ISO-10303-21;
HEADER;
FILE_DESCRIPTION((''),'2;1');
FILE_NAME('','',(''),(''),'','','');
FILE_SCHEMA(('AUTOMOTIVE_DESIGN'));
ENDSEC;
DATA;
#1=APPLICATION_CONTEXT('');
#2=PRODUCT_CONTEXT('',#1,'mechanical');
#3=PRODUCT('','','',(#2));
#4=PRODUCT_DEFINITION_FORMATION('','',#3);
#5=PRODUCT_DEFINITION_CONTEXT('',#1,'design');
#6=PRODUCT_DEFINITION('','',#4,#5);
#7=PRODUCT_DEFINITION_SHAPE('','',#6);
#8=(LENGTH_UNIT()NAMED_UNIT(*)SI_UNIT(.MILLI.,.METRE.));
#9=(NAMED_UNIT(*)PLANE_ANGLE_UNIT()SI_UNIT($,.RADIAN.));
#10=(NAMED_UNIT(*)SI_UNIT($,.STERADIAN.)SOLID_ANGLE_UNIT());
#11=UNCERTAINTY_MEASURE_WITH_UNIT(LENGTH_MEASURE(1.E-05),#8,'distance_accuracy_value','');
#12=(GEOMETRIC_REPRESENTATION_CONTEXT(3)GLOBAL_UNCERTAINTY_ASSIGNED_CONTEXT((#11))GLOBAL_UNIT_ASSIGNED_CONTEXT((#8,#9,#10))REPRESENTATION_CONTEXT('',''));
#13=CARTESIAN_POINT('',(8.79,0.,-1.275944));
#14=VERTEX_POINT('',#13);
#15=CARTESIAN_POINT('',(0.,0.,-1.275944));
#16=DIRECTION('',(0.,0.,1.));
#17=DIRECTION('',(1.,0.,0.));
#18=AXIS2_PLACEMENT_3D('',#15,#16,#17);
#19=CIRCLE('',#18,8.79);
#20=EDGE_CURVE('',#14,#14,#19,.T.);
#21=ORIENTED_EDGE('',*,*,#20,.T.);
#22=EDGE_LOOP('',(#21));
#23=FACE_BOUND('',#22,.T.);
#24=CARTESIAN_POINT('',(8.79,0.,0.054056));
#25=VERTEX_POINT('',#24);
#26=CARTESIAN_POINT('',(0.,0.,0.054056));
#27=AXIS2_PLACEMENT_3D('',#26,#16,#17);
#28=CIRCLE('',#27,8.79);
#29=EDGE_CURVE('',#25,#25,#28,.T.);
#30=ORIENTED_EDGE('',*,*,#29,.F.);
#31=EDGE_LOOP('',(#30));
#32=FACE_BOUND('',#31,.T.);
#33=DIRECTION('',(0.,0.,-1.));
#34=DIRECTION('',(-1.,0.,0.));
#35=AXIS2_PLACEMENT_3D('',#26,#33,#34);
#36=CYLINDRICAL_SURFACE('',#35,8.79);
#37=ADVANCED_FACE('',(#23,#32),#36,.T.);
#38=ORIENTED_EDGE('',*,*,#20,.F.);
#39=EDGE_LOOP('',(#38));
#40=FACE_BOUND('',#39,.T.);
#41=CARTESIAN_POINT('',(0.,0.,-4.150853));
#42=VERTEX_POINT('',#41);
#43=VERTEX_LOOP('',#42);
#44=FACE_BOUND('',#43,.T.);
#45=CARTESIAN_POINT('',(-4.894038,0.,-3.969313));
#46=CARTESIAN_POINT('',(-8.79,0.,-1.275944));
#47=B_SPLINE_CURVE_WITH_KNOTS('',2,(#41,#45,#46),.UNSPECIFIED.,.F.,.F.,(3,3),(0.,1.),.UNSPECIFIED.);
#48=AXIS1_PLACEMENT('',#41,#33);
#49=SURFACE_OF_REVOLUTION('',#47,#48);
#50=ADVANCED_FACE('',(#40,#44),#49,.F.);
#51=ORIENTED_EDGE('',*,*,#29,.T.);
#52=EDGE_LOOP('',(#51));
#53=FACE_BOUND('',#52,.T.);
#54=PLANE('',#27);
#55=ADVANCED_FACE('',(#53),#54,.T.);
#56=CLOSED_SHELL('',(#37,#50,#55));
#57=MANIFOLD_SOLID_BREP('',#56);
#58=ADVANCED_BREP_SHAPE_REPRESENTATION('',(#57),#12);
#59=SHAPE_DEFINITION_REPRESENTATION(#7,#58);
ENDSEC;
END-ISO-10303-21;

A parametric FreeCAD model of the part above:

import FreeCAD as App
import Part
import Sketcher
from FreeCAD import Vector
Q = App.Units.Quantity

doc = App.newDocument("Part")
body = doc.addObject("PartDesign::Body", "Body")

# Sketch on XZ plane
sketch1 = body.newObject("Sketcher::SketchObject", "Sketch")
sketch1.AttachmentSupport = (doc.getObject("XZ_Plane"), [""])
sketch1.MapMode = "FlatFace"
sketch1.addGeometry([
    Part.LineSegment(Vector(-8.79, -1.275944, 0), Vector(0, -1.275944, 0)),
    Part.LineSegment(Vector(0, -1.275944, 0), Vector(0, -4.150853, 0)),
    Part.BSplineCurve([Vector(-8.79, -1.275944, 0), Vector(-4.894038, -3.969313, 0), Vector(0, -4.150853, 0)], [3, 3], [0, 1], False, 2, [1, 1, 1], False),
], False)
sketch1.addConstraint([
    Sketcher.Constraint("Block", 2),
    Sketcher.Constraint("Coincident", 0, 2, 1, 1),
    Sketcher.Constraint("Coincident", 1, 2, 2, 2),
    Sketcher.Constraint("Coincident", 2, 1, 0, 1),
    Sketcher.Constraint("Horizontal", 0),
    Sketcher.Constraint("Vertical", 1),
])
revolution = body.newObject("PartDesign::Revolution", "Revolution")
revolution.Profile = sketch1
revolution.ReferenceAxis = (sketch1, ["V_Axis"])
revolution.Angle = 360

# Sketch on XY plane
sketch2 = body.newObject("Sketcher::SketchObject", "Sketch001")
sketch2.AttachmentSupport = (doc.getObject("XY_Plane"), [""])
sketch2.MapMode = "FlatFace"
sketch2.AttachmentOffset = App.Placement(Vector(0, 0, -1.275944), App.Rotation())
sketch2.addGeometry(Part.Circle(Vector(0, 0, 0), Vector(0, 0, 1), 8.79), False)
sketch2.addConstraint([
    Sketcher.Constraint("Coincident", 0, 3, -1, 1),
    Sketcher.Constraint("Diameter", 0, Q("17.58 mm")),
])
pad1 = body.newObject("PartDesign::Pad", "Pad")
pad1.Profile = sketch2
pad1.Length = 1.33

doc.recompute()
